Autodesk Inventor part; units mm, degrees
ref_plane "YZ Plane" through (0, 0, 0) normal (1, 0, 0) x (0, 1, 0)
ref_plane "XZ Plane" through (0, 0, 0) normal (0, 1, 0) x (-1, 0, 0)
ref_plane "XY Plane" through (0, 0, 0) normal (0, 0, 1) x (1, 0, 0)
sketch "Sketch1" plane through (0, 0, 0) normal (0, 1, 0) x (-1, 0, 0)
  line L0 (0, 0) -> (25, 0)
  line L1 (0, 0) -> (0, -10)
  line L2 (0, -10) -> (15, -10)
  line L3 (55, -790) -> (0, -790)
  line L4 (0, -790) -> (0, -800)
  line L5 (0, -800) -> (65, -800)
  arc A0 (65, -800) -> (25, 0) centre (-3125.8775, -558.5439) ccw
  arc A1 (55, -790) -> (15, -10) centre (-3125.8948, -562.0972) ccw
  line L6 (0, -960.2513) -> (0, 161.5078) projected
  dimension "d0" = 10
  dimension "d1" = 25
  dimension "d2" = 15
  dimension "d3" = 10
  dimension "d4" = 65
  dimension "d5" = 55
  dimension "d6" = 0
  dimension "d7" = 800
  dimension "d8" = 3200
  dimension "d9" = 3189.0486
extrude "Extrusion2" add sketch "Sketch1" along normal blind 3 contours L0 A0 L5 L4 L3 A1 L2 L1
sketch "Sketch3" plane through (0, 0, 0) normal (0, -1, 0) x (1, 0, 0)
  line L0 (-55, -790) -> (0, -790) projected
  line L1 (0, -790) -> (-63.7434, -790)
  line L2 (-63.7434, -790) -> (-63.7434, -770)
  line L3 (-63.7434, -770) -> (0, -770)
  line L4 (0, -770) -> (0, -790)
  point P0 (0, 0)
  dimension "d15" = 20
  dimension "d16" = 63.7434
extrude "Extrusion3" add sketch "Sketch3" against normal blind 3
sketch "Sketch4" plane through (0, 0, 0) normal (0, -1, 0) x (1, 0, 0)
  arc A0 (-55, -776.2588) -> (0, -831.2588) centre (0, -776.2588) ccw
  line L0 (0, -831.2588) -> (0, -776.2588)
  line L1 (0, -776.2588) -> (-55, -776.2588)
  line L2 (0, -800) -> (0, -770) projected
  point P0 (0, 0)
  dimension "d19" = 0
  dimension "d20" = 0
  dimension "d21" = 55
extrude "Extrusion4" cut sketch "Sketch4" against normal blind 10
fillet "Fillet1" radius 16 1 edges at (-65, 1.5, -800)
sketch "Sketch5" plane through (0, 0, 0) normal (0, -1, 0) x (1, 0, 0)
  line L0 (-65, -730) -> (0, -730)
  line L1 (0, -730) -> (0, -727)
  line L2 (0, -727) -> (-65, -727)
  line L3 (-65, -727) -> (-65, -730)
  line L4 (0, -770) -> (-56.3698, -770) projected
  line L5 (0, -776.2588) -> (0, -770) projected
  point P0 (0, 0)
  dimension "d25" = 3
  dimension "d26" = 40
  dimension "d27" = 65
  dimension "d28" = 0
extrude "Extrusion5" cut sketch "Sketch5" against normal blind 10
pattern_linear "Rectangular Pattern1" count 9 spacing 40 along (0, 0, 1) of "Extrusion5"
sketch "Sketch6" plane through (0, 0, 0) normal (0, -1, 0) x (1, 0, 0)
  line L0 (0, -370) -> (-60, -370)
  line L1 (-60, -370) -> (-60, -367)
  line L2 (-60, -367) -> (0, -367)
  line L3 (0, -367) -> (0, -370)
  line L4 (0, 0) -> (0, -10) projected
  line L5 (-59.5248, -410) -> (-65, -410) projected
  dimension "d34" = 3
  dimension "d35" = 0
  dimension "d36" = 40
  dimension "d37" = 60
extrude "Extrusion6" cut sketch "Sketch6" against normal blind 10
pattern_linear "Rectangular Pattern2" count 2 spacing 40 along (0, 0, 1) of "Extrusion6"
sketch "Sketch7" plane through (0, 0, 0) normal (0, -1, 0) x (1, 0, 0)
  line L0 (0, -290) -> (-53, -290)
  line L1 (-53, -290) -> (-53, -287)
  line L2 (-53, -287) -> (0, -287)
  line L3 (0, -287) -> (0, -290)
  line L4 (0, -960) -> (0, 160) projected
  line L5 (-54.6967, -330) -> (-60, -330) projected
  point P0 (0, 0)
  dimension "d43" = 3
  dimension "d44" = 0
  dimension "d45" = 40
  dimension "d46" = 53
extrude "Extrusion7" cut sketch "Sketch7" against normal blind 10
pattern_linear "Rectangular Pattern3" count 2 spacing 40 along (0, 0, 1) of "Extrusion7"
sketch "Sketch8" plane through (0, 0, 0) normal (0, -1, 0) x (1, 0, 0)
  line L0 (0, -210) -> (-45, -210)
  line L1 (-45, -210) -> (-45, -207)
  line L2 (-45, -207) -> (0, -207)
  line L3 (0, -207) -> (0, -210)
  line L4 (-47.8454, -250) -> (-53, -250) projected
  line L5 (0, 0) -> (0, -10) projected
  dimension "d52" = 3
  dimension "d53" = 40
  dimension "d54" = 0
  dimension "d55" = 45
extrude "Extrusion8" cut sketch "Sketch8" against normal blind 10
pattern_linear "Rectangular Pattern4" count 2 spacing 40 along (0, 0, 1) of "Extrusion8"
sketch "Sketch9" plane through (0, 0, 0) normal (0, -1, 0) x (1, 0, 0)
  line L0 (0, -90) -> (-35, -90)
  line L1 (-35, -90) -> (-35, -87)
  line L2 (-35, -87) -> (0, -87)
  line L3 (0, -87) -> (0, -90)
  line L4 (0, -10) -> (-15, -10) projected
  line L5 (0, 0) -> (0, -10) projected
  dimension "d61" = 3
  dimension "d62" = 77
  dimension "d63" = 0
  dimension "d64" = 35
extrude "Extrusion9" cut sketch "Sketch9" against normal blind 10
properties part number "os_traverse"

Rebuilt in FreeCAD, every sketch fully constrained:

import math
import FreeCAD as App
import Part
import Sketcher

V = App.Vector
Q = App.Units.Quantity


def edges_at(feature, points):
    """Names of the edges that pass closest to the given points."""
    edges = feature.Shape.Edges
    near = lambda p: min(range(len(edges)), key=lambda i: edges[i].distToShape(Part.Vertex(*p))[0])
    return sorted({f"Edge{near(p) + 1}" for p in points})

doc = App.newDocument("Part")
params = doc.addObject("Spreadsheet::Sheet", "Params")
for row, (alias, value) in enumerate([
    ("sketch1_radius", "3200 mm"),
    ("sketch1_width", "25 mm"),
    ("sketch1_width2", "15 mm"),
    ("sketch1_width3", "55 mm"),
    ("sketch1_width4", "65 mm"),
    ("pad1_length", "3 mm"),
    ("sketch2_height", "20 mm"),
    ("pad2_length", "3 mm"),
    ("sketch3_radius", "55 mm"),
    ("pocket1_length", "10 mm"),
    ("fillet_radius", "16 mm"),
    ("sketch4_width", "65 mm"),
    ("sketch4_height", "3 mm"),
    ("pocket2_length", "10 mm"),
    ("linearpattern_pitch", "40 mm"),
    ("sketch5_width", "60 mm"),
    ("sketch5_height", "3 mm"),
    ("pocket3_length", "10 mm"),
    ("linearpattern2_pitch", "40 mm"),
    ("sketch6_width", "53 mm"),
    ("sketch6_height", "3 mm"),
    ("pocket4_length", "10 mm"),
    ("linearpattern3_pitch", "40 mm"),
    ("sketch7_width", "45 mm"),
    ("sketch7_height", "3 mm"),
    ("pocket5_length", "10 mm"),
    ("linearpattern4_pitch", "40 mm"),
    ("sketch8_width", "35 mm"),
    ("sketch8_height", "3 mm"),
    ("pocket6_length", "10 mm"),
], start=1):
    params.set(f"A{row}", alias)
    params.set(f"B{row}", "=" + value)
    params.setAlias(f"B{row}", alias)

body = doc.addObject("PartDesign::Body", "Body")

# Sketch on XZ plane
sketch1 = body.newObject("Sketcher::SketchObject", "Sketch")
sketch1.AttachmentSupport = (doc.getObject("XZ_Plane"), [""])
sketch1.MapMode = "FlatFace"
sketch1.addGeometry([
    Part.LineSegment(V(-25, 0, 0), V(0, 0, 0)),  # 0
    Part.LineSegment(V(0, 0, 0), V(0, -10, 0)),  # 1
    Part.LineSegment(V(0, -10, 0), V(-15, -10, 0)),  # 2
    Part.ArcOfCircle(Part.Circle(V(3126, -562, 0), V(0, 0, 1), 3189), math.radians(170.03), math.radians(184.1)),  # 3
    Part.LineSegment(V(-55, -790, 0), V(0, -790, 0)),  # 4
    Part.LineSegment(V(0, -790, 0), V(0, -800, 0)),  # 5
    Part.LineSegment(V(0, -800, 0), V(-65, -800, 0)),  # 6
    Part.ArcOfCircle(Part.Circle(V(3126, -559, 0), V(0, 0, 1), 3200), math.radians(169.95), math.radians(184.33)),  # 7
], False)
sketch1.addConstraint([
    Sketcher.Constraint("Coincident", 0, 2, 1, 1),
    Sketcher.Constraint("Coincident", 1, 2, 2, 1),
    Sketcher.Constraint("Coincident", 2, 2, 3, 1),
    Sketcher.Constraint("Coincident", 3, 2, 4, 1),
    Sketcher.Constraint("Coincident", 4, 2, 5, 1),
    Sketcher.Constraint("Coincident", 5, 2, 6, 1),
    Sketcher.Constraint("Coincident", 6, 2, 7, 2),
    Sketcher.Constraint("Coincident", 7, 1, 0, 1),
    Sketcher.Constraint("Horizontal", 0),
    Sketcher.Constraint("Vertical", 1),
    Sketcher.Constraint("Horizontal", 2),
    Sketcher.Constraint("Horizontal", 4),
    Sketcher.Constraint("Vertical", 5),
    Sketcher.Constraint("Horizontal", 6),
    Sketcher.Constraint("Coincident", 0, 2, -1, 1),
    Sketcher.Constraint("PointOnObject", 4, 2, -2),
    Sketcher.Constraint("Equal", 1, 5),
    Sketcher.Constraint("Radius", 7, Q("3200 mm")),
    Sketcher.Constraint("DistanceX", 0, 1, 0, 2, Q("25 mm")),
    Sketcher.Constraint("DistanceX", 2, 2, 2, 1, Q("15 mm")),
    Sketcher.Constraint("DistanceX", 4, 1, 4, 2, Q("55 mm")),
    Sketcher.Constraint("DistanceX", 6, 2, 6, 1, Q("65 mm")),
    Sketcher.Constraint("DistanceY", 1, 2, 1, 1, Q("10 mm")),
    Sketcher.Constraint("DistanceY", 5, 2, -1, 1, Q("800 mm")),
    Sketcher.Constraint("Radius", 3, Q("3189.0487 mm")),
])
sketch1.setExpression("Constraints[17]", "Params.sketch1_radius")
sketch1.setExpression("Constraints[18]", "Params.sketch1_width")
sketch1.setExpression("Constraints[19]", "Params.sketch1_width2")
sketch1.setExpression("Constraints[20]", "Params.sketch1_width3")
sketch1.setExpression("Constraints[21]", "Params.sketch1_width4")
pad1 = body.newObject("PartDesign::Pad", "Pad")
pad1.Profile = sketch1
pad1.setExpression("Length", "Params.pad1_length")
pad1.Reversed = True

# Sketch on XZ plane
sketch2 = body.newObject("Sketcher::SketchObject", "Sketch001")
sketch2.AttachmentSupport = (doc.getObject("XZ_Plane"), [""])
sketch2.MapMode = "FlatFace"
sketch2.addGeometry([
    Part.LineSegment(V(-64, -790, 0), V(0, -790, 0)),
    Part.LineSegment(V(0, -790, 0), V(0, -770, 0)),
    Part.LineSegment(V(0, -770, 0), V(-64, -770, 0)),
    Part.LineSegment(V(-64, -770, 0), V(-64, -790, 0)),
], False)
sketch2.addConstraint([
    Sketcher.Constraint("Coincident", 0, 2, 1, 1),
    Sketcher.Constraint("Coincident", 1, 2, 2, 1),
    Sketcher.Constraint("Coincident", 2, 2, 3, 1),
    Sketcher.Constraint("Coincident", 3, 2, 0, 1),
    Sketcher.Constraint("Horizontal", 0),
    Sketcher.Constraint("Vertical", 1),
    Sketcher.Constraint("Horizontal", 2),
    Sketcher.Constraint("Vertical", 3),
    Sketcher.Constraint("PointOnObject", 0, 2, -2),
    Sketcher.Constraint("DistanceY", 1, 1, 1, 2, Q("20 mm")),
    Sketcher.Constraint("DistanceX", 0, 1, 0, 2, Q("63.7434 mm")),
    Sketcher.Constraint("DistanceY", 0, 2, -1, 1, Q("790 mm")),
])
sketch2.setExpression("Constraints[9]", "Params.sketch2_height")
pad2 = body.newObject("PartDesign::Pad", "Pad001")
pad2.Profile = sketch2
pad2.setExpression("Length", "Params.pad2_length")
pad2.Reversed = True

# Sketch on XZ plane
sketch3 = body.newObject("Sketcher::SketchObject", "Sketch002")
sketch3.AttachmentSupport = (doc.getObject("XZ_Plane"), [""])
sketch3.MapMode = "FlatFace"
sketch3.addGeometry([
    Part.LineSegment(V(0, -776, 0), V(-55, -776, 0)),
    Part.ArcOfCircle(Part.Circle(V(0, -776, 0), V(0, 0, 1), 55), math.radians(180), math.radians(270)),
    Part.LineSegment(V(0, -831, 0), V(0, -776, 0)),
], False)
sketch3.addConstraint([
    Sketcher.Constraint("Coincident", 0, 2, 1, 1),
    Sketcher.Constraint("Coincident", 1, 2, 2, 1),
    Sketcher.Constraint("Coincident", 2, 2, 0, 1),
    Sketcher.Constraint("Horizontal", 0),
    Sketcher.Constraint("Vertical", 2),
    Sketcher.Constraint("Coincident", 2, 2, 1, 3),
    Sketcher.Constraint("PointOnObject", 1, 3, -2),
    Sketcher.Constraint("Radius", 1, Q("55 mm")),
    Sketcher.Constraint("DistanceY", 1, 3, -1, 1, Q("776.2588 mm")),
])
sketch3.setExpression("Constraints[7]", "Params.sketch3_radius")
pocket1 = body.newObject("PartDesign::Pocket", "Pocket")
pocket1.Profile = sketch3
pocket1.setExpression("Length", "Params.pocket1_length")
doc.recompute()

fillet = body.newObject("PartDesign::Fillet", "Fillet")
fillet.Base = (pocket1, edges_at(pocket1, [(-65, 1.5, -800)]))
fillet.setExpression("Radius", "Params.fillet_radius")

# Sketch on XZ plane
sketch4 = body.newObject("Sketcher::SketchObject", "Sketch003")
sketch4.AttachmentSupport = (doc.getObject("XZ_Plane"), [""])
sketch4.MapMode = "FlatFace"
sketch4.addGeometry([
    Part.LineSegment(V(-65, -727, 0), V(-65, -730, 0)),
    Part.LineSegment(V(-65, -730, 0), V(0, -730, 0)),
    Part.LineSegment(V(0, -730, 0), V(0, -727, 0)),
    Part.LineSegment(V(0, -727, 0), V(-65, -727, 0)),
], False)
sketch4.addConstraint([
    Sketcher.Constraint("Coincident", 0, 2, 1, 1),
    Sketcher.Constraint("Coincident", 1, 2, 2, 1),
    Sketcher.Constraint("Coincident", 2, 2, 3, 1),
    Sketcher.Constraint("Coincident", 3, 2, 0, 1),
    Sketcher.Constraint("Vertical", 0),
    Sketcher.Constraint("Horizontal", 1),
    Sketcher.Constraint("Vertical", 2),
    Sketcher.Constraint("Horizontal", 3),
    Sketcher.Constraint("PointOnObject", 1, 2, -2),
    Sketcher.Constraint("DistanceX", 1, 1, 1, 2, Q("65 mm")),
    Sketcher.Constraint("DistanceY", 0, 2, 0, 1, Q("3 mm")),
    Sketcher.Constraint("DistanceY", 0, 2, -1, 1, Q("730 mm")),
])
sketch4.setExpression("Constraints[9]", "Params.sketch4_width")
sketch4.setExpression("Constraints[10]", "Params.sketch4_height")
pocket2 = body.newObject("PartDesign::Pocket", "Pocket001")
pocket2.Profile = sketch4
pocket2.setExpression("Length", "Params.pocket2_length")
doc.recompute()

linearpattern = body.newObject("PartDesign::LinearPattern", "LinearPattern")
linearpattern.Originals = [pocket2]
linearpattern.Direction = (doc.getObject("Z_Axis"), [""])
linearpattern.Mode = "offset"
linearpattern.setExpression("Offset", "Params.linearpattern_pitch")
linearpattern.Occurrences = 9
body.Tip = linearpattern

# Sketch on XZ plane
sketch5 = body.newObject("Sketcher::SketchObject", "Sketch004")
sketch5.AttachmentSupport = (doc.getObject("XZ_Plane"), [""])
sketch5.MapMode = "FlatFace"
sketch5.addGeometry([
    Part.LineSegment(V(-60, -370, 0), V(0, -370, 0)),
    Part.LineSegment(V(0, -370, 0), V(0, -367, 0)),
    Part.LineSegment(V(0, -367, 0), V(-60, -367, 0)),
    Part.LineSegment(V(-60, -367, 0), V(-60, -370, 0)),
], False)
sketch5.addConstraint([
    Sketcher.Constraint("Coincident", 0, 2, 1, 1),
    Sketcher.Constraint("Coincident", 1, 2, 2, 1),
    Sketcher.Constraint("Coincident", 2, 2, 3, 1),
    Sketcher.Constraint("Coincident", 3, 2, 0, 1),
    Sketcher.Constraint("Horizontal", 0),
    Sketcher.Constraint("Vertical", 1),
    Sketcher.Constraint("Horizontal", 2),
    Sketcher.Constraint("Vertical", 3),
    Sketcher.Constraint("PointOnObject", 0, 2, -2),
    Sketcher.Constraint("DistanceX", 0, 1, 0, 2, Q("60 mm")),
    Sketcher.Constraint("DistanceY", 1, 1, 1, 2, Q("3 mm")),
    Sketcher.Constraint("DistanceY", 0, 2, -1, 1, Q("370 mm")),
])
sketch5.setExpression("Constraints[9]", "Params.sketch5_width")
sketch5.setExpression("Constraints[10]", "Params.sketch5_height")
pocket3 = body.newObject("PartDesign::Pocket", "Pocket002")
pocket3.Profile = sketch5
pocket3.setExpression("Length", "Params.pocket3_length")
doc.recompute()

linearpattern2 = body.newObject("PartDesign::LinearPattern", "LinearPattern001")
linearpattern2.Originals = [pocket3]
linearpattern2.Direction = (doc.getObject("Z_Axis"), [""])
linearpattern2.Mode = "offset"
linearpattern2.setExpression("Offset", "Params.linearpattern2_pitch")
linearpattern2.Occurrences = 2
body.Tip = linearpattern2

# Sketch on XZ plane
sketch6 = body.newObject("Sketcher::SketchObject", "Sketch005")
sketch6.AttachmentSupport = (doc.getObject("XZ_Plane"), [""])
sketch6.MapMode = "FlatFace"
sketch6.addGeometry([
    Part.LineSegment(V(-53, -290, 0), V(0, -290, 0)),
    Part.LineSegment(V(0, -290, 0), V(0, -287, 0)),
    Part.LineSegment(V(0, -287, 0), V(-53, -287, 0)),
    Part.LineSegment(V(-53, -287, 0), V(-53, -290, 0)),
], False)
sketch6.addConstraint([
    Sketcher.Constraint("Coincident", 0, 2, 1, 1),
    Sketcher.Constraint("Coincident", 1, 2, 2, 1),
    Sketcher.Constraint("Coincident", 2, 2, 3, 1),
    Sketcher.Constraint("Coincident", 3, 2, 0, 1),
    Sketcher.Constraint("Horizontal", 0),
    Sketcher.Constraint("Vertical", 1),
    Sketcher.Constraint("Horizontal", 2),
    Sketcher.Constraint("Vertical", 3),
    Sketcher.Constraint("PointOnObject", 0, 2, -2),
    Sketcher.Constraint("DistanceX", 0, 1, 0, 2, Q("53 mm")),
    Sketcher.Constraint("DistanceY", 1, 1, 1, 2, Q("3 mm")),
    Sketcher.Constraint("DistanceY", 0, 2, -1, 1, Q("290 mm")),
])
sketch6.setExpression("Constraints[9]", "Params.sketch6_width")
sketch6.setExpression("Constraints[10]", "Params.sketch6_height")
pocket4 = body.newObject("PartDesign::Pocket", "Pocket003")
pocket4.Profile = sketch6
pocket4.setExpression("Length", "Params.pocket4_length")
doc.recompute()

linearpattern3 = body.newObject("PartDesign::LinearPattern", "LinearPattern002")
linearpattern3.Originals = [pocket4]
linearpattern3.Direction = (doc.getObject("Z_Axis"), [""])
linearpattern3.Mode = "offset"
linearpattern3.setExpression("Offset", "Params.linearpattern3_pitch")
linearpattern3.Occurrences = 2
body.Tip = linearpattern3

# Sketch on XZ plane
sketch7 = body.newObject("Sketcher::SketchObject", "Sketch006")
sketch7.AttachmentSupport = (doc.getObject("XZ_Plane"), [""])
sketch7.MapMode = "FlatFace"
sketch7.addGeometry([
    Part.LineSegment(V(-45, -210, 0), V(0, -210, 0)),
    Part.LineSegment(V(0, -210, 0), V(0, -207, 0)),
    Part.LineSegment(V(0, -207, 0), V(-45, -207, 0)),
    Part.LineSegment(V(-45, -207, 0), V(-45, -210, 0)),
], False)
sketch7.addConstraint([
    Sketcher.Constraint("Coincident", 0, 2, 1, 1),
    Sketcher.Constraint("Coincident", 1, 2, 2, 1),
    Sketcher.Constraint("Coincident", 2, 2, 3, 1),
    Sketcher.Constraint("Coincident", 3, 2, 0, 1),
    Sketcher.Constraint("Horizontal", 0),
    Sketcher.Constraint("Vertical", 1),
    Sketcher.Constraint("Horizontal", 2),
    Sketcher.Constraint("Vertical", 3),
    Sketcher.Constraint("PointOnObject", 0, 2, -2),
    Sketcher.Constraint("DistanceX", 0, 1, 0, 2, Q("45 mm")),
    Sketcher.Constraint("DistanceY", 1, 1, 1, 2, Q("3 mm")),
    Sketcher.Constraint("DistanceY", 0, 2, -1, 1, Q("210 mm")),
])
sketch7.setExpression("Constraints[9]", "Params.sketch7_width")
sketch7.setExpression("Constraints[10]", "Params.sketch7_height")
pocket5 = body.newObject("PartDesign::Pocket", "Pocket004")
pocket5.Profile = sketch7
pocket5.setExpression("Length", "Params.pocket5_length")
doc.recompute()

linearpattern4 = body.newObject("PartDesign::LinearPattern", "LinearPattern003")
linearpattern4.Originals = [pocket5]
linearpattern4.Direction = (doc.getObject("Z_Axis"), [""])
linearpattern4.Mode = "offset"
linearpattern4.setExpression("Offset", "Params.linearpattern4_pitch")
linearpattern4.Occurrences = 2
body.Tip = linearpattern4

# Sketch on XZ plane
sketch8 = body.newObject("Sketcher::SketchObject", "Sketch007")
sketch8.AttachmentSupport = (doc.getObject("XZ_Plane"), [""])
sketch8.MapMode = "FlatFace"
sketch8.addGeometry([
    Part.LineSegment(V(-35, -90, 0), V(0, -90, 0)),
    Part.LineSegment(V(0, -90, 0), V(0, -87, 0)),
    Part.LineSegment(V(0, -87, 0), V(-35, -87, 0)),
    Part.LineSegment(V(-35, -87, 0), V(-35, -90, 0)),
], False)
sketch8.addConstraint([
    Sketcher.Constraint("Coincident", 0, 2, 1, 1),
    Sketcher.Constraint("Coincident", 1, 2, 2, 1),
    Sketcher.Constraint("Coincident", 2, 2, 3, 1),
    Sketcher.Constraint("Coincident", 3, 2, 0, 1),
    Sketcher.Constraint("Horizontal", 0),
    Sketcher.Constraint("Vertical", 1),
    Sketcher.Constraint("Horizontal", 2),
    Sketcher.Constraint("Vertical", 3),
    Sketcher.Constraint("PointOnObject", 0, 2, -2),
    Sketcher.Constraint("DistanceX", 0, 1, 0, 2, Q("35 mm")),
    Sketcher.Constraint("DistanceY", 1, 1, 1, 2, Q("3 mm")),
    Sketcher.Constraint("DistanceY", 0, 2, -1, 1, Q("90 mm")),
])
sketch8.setExpression("Constraints[9]", "Params.sketch8_width")
sketch8.setExpression("Constraints[10]", "Params.sketch8_height")
pocket6 = body.newObject("PartDesign::Pocket", "Pocket005")
pocket6.Profile = sketch8
pocket6.setExpression("Length", "Params.pocket6_length")

doc.recompute()
